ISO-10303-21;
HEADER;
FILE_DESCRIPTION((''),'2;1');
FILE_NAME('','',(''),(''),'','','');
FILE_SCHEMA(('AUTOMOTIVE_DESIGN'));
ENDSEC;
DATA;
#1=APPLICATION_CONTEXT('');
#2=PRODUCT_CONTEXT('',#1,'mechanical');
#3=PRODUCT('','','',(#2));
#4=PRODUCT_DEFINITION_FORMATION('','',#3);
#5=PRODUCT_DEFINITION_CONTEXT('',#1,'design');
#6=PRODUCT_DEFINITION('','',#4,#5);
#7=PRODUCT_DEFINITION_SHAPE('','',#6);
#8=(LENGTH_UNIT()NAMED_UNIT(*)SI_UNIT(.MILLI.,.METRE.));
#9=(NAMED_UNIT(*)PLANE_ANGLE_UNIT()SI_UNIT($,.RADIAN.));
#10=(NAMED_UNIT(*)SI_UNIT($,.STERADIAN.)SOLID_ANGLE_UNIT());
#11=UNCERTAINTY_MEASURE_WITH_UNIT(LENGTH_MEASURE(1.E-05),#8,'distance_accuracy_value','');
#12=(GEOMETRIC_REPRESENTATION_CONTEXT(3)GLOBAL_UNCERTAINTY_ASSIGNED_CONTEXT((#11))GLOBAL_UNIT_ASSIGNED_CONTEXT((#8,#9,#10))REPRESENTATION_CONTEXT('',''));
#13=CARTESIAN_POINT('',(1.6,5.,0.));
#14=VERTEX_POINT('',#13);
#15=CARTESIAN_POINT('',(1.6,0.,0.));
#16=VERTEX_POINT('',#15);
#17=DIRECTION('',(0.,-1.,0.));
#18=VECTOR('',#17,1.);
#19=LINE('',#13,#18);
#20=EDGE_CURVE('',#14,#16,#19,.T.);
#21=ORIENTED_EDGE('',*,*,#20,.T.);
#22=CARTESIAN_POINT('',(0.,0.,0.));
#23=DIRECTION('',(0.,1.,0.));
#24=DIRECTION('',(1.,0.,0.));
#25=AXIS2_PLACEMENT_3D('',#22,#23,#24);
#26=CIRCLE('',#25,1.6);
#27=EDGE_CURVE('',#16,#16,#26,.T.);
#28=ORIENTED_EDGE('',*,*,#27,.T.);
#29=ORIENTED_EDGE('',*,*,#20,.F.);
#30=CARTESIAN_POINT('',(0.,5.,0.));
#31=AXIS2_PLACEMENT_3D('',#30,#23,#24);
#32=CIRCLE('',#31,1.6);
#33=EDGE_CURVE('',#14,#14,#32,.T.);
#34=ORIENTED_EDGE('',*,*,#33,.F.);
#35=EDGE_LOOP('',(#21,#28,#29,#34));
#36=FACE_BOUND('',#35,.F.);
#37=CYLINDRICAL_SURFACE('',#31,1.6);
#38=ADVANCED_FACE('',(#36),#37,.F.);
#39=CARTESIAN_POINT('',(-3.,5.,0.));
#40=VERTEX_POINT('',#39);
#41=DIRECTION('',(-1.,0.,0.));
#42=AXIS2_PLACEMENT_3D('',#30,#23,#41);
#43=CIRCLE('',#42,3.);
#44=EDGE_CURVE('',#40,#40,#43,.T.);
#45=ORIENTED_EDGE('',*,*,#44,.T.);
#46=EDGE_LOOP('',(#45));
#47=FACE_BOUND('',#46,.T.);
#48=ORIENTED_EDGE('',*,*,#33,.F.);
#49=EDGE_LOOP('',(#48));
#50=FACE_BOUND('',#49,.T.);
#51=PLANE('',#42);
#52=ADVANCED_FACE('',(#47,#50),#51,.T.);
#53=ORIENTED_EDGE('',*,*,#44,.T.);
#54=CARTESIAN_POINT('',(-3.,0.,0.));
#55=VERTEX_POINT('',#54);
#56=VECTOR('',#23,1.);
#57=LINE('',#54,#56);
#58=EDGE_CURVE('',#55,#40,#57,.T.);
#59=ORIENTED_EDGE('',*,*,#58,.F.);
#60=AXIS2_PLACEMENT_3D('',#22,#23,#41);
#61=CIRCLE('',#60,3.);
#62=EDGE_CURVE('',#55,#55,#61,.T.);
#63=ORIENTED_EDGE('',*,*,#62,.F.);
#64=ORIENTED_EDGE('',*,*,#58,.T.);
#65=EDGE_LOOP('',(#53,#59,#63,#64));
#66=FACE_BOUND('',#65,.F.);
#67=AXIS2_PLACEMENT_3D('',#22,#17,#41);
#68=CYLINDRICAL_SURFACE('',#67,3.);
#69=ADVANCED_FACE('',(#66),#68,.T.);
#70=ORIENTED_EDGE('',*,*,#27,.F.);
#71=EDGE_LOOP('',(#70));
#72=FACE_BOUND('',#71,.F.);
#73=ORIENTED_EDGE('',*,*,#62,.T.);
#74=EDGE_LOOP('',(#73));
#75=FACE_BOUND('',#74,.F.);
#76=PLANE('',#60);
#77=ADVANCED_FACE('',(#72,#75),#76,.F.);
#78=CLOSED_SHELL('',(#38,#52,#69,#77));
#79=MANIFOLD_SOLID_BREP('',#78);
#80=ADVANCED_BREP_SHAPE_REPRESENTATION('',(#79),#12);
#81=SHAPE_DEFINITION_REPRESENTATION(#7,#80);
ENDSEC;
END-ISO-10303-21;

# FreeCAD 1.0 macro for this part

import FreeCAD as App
import Part
import Sketcher

doc = App.newDocument("Part")
body = doc.addObject("PartDesign::Body", "Body")

# Sketch on XZ plane
sketch1 = body.newObject("Sketcher::SketchObject", "Sketch")
sketch1.AttachmentSupport = (doc.getObject("XZ_Plane"), [""])
sketch1.MapMode = "FlatFace"
sketch1.addGeometry(Part.Circle(App.Vector(0, 0, 0), App.Vector(0, 0, 1), 3), False)
sketch1.addConstraint(Sketcher.Constraint("Coincident", 0, 3, -1, 1))
sketch1.addConstraint(Sketcher.Constraint("Diameter", 0, 6.0))
pad1 = body.newObject("PartDesign::Pad", "Pad")
pad1.Profile = sketch1
pad1.Length = 5
pad1.Reversed = True

# Sketch on XZ plane
sketch2 = body.newObject("Sketcher::SketchObject", "Sketch001")
sketch2.AttachmentSupport = (doc.getObject("XZ_Plane"), [""])
sketch2.MapMode = "FlatFace"
sketch2.AttachmentOffset = App.Placement(App.Vector(0, 0, -5), App.Rotation())
sketch2.addGeometry(Part.Circle(App.Vector(0, 0, 0), App.Vector(0, 0, 1), 1.6), False)
sketch2.addConstraint(Sketcher.Constraint("Coincident", 0, 3, -1, 1))
sketch2.addConstraint(Sketcher.Constraint("Diameter", 0, 3.2))
pocket1 = body.newObject("PartDesign::Pocket", "Pocket")
pocket1.Profile = sketch2
pocket1.Type = "ThroughAll"
pocket1.Reversed = True

doc.recompute()
